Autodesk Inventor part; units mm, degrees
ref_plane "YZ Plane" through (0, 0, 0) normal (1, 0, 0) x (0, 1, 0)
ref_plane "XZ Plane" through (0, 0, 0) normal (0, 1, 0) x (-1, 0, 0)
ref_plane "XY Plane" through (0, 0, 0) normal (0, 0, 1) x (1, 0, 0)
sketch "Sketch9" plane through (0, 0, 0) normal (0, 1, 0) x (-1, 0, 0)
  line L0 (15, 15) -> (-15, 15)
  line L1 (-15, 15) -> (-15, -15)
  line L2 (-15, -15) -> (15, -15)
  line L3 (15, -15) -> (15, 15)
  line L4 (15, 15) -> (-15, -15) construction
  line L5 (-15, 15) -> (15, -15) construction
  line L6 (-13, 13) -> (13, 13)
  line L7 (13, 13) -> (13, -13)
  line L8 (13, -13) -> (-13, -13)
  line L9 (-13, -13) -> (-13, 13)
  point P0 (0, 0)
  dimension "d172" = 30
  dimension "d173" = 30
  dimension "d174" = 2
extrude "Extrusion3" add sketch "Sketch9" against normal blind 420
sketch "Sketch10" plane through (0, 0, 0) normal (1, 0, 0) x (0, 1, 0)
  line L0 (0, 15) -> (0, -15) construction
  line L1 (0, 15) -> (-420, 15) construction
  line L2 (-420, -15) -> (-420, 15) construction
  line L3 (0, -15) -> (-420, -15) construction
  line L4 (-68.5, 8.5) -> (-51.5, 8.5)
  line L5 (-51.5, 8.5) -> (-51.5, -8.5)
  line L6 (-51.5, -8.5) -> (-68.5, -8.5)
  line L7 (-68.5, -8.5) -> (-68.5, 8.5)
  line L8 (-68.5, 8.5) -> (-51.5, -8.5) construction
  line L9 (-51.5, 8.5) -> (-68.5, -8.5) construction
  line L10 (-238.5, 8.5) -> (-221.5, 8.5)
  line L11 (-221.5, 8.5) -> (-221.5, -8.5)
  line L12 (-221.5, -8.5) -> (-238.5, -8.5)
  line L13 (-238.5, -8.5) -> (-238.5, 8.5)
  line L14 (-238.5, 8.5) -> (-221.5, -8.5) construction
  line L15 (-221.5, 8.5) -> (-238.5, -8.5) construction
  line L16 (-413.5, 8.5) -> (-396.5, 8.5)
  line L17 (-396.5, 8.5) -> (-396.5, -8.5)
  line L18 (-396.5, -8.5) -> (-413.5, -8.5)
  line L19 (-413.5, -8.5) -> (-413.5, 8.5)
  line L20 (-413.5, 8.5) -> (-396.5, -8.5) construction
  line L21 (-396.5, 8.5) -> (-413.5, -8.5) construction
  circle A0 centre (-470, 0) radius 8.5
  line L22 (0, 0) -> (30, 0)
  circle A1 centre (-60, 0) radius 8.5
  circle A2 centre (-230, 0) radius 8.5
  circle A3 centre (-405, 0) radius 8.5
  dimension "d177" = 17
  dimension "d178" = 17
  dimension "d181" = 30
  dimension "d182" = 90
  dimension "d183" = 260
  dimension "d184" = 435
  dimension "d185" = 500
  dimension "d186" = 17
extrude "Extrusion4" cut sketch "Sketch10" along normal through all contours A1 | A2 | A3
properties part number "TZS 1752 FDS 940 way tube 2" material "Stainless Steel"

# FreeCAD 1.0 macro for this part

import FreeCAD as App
import Part
import Sketcher


def add_polygon(sketch, points):
    """Adds a closed chain of lines whose ends are joined by coincident constraints."""
    first, n = sketch.GeometryCount, len(points)
    for a, b in zip(points, points[1:] + points[:1]):
        sketch.addGeometry(Part.LineSegment(App.Vector(*a, 0), App.Vector(*b, 0)), False)
    for i in range(n):
        sketch.addConstraint(Sketcher.Constraint("Coincident", first + i, 2, first + (i + 1) % n, 1))

doc = App.newDocument("Part")
body = doc.addObject("PartDesign::Body", "Body")

sketch1 = body.newObject("Sketcher::SketchObject", "Sketch")
sketch1.AttachmentSupport = (doc.getObject("XZ_Plane"), [""])
sketch1.MapMode = "FlatFace"
add_polygon(sketch1, [(-15, -15), (-15, 15), (15, 15), (15, -15)])
add_polygon(sketch1, [(13, -13), (13, 13), (-13, 13), (-13, -13)])
sketch1.addConstraint(Sketcher.Constraint("Vertical", 0))
sketch1.addConstraint(Sketcher.Constraint("Horizontal", 1))
sketch1.addConstraint(Sketcher.Constraint("Vertical", 2))
sketch1.addConstraint(Sketcher.Constraint("Horizontal", 3))
sketch1.addConstraint(Sketcher.Constraint("Vertical", 4))
sketch1.addConstraint(Sketcher.Constraint("Horizontal", 5))
sketch1.addConstraint(Sketcher.Constraint("Vertical", 6))
sketch1.addConstraint(Sketcher.Constraint("Horizontal", 7))
sketch1.addConstraint(Sketcher.Constraint("Symmetric", 0, 2, 2, 2, -1, 1))
sketch1.addConstraint(Sketcher.Constraint("Symmetric", 4, 2, 6, 2, -1, 1))
sketch1.addConstraint(Sketcher.Constraint("Equal", 3, 0))
sketch1.addConstraint(Sketcher.Constraint("Equal", 7, 4))
sketch1.addConstraint(Sketcher.Constraint("DistanceX", 1, 1, 1, 2, 30.0))
sketch1.addConstraint(Sketcher.Constraint("DistanceX", 4, 2, 1, 2, 2.0))
pad1 = body.newObject("PartDesign::Pad", "Pad")
pad1.Profile = sketch1
pad1.Length = 420

sketch2 = body.newObject("Sketcher::SketchObject", "Sketch001")
sketch2.AttachmentSupport = (doc.getObject("YZ_Plane"), [""])
sketch2.MapMode = "FlatFace"
sketch2.addGeometry(Part.Circle(App.Vector(-60, 0, 0), App.Vector(0, 0, 1), 8), False)
sketch2.addGeometry(Part.Circle(App.Vector(-230, 0, 0), App.Vector(0, 0, 1), 8), False)
sketch2.addGeometry(Part.Circle(App.Vector(-405, 0, 0), App.Vector(0, 0, 1), 8), False)
sketch2.addConstraint(Sketcher.Constraint("Equal", 0, 1))
sketch2.addConstraint(Sketcher.Constraint("Equal", 1, 2))
sketch2.addConstraint(Sketcher.Constraint("PointOnObject", 0, 3, -1))
sketch2.addConstraint(Sketcher.Constraint("PointOnObject", 1, 3, -1))
sketch2.addConstraint(Sketcher.Constraint("PointOnObject", 2, 3, -1))
sketch2.addConstraint(Sketcher.Constraint("Diameter", 0, 17.0))
sketch2.addConstraint(Sketcher.Constraint("DistanceX", 0, 3, -1, 1, 60.0))
sketch2.addConstraint(Sketcher.Constraint("DistanceX", 1, 3, -1, 1, 230.0))
sketch2.addConstraint(Sketcher.Constraint("DistanceX", 2, 3, -1, 1, 405.0))
pocket1 = body.newObject("PartDesign::Pocket", "Pocket")
pocket1.Profile = sketch2
pocket1.Type = "ThroughAll"
pocket1.Reversed = True

doc.recompute()
